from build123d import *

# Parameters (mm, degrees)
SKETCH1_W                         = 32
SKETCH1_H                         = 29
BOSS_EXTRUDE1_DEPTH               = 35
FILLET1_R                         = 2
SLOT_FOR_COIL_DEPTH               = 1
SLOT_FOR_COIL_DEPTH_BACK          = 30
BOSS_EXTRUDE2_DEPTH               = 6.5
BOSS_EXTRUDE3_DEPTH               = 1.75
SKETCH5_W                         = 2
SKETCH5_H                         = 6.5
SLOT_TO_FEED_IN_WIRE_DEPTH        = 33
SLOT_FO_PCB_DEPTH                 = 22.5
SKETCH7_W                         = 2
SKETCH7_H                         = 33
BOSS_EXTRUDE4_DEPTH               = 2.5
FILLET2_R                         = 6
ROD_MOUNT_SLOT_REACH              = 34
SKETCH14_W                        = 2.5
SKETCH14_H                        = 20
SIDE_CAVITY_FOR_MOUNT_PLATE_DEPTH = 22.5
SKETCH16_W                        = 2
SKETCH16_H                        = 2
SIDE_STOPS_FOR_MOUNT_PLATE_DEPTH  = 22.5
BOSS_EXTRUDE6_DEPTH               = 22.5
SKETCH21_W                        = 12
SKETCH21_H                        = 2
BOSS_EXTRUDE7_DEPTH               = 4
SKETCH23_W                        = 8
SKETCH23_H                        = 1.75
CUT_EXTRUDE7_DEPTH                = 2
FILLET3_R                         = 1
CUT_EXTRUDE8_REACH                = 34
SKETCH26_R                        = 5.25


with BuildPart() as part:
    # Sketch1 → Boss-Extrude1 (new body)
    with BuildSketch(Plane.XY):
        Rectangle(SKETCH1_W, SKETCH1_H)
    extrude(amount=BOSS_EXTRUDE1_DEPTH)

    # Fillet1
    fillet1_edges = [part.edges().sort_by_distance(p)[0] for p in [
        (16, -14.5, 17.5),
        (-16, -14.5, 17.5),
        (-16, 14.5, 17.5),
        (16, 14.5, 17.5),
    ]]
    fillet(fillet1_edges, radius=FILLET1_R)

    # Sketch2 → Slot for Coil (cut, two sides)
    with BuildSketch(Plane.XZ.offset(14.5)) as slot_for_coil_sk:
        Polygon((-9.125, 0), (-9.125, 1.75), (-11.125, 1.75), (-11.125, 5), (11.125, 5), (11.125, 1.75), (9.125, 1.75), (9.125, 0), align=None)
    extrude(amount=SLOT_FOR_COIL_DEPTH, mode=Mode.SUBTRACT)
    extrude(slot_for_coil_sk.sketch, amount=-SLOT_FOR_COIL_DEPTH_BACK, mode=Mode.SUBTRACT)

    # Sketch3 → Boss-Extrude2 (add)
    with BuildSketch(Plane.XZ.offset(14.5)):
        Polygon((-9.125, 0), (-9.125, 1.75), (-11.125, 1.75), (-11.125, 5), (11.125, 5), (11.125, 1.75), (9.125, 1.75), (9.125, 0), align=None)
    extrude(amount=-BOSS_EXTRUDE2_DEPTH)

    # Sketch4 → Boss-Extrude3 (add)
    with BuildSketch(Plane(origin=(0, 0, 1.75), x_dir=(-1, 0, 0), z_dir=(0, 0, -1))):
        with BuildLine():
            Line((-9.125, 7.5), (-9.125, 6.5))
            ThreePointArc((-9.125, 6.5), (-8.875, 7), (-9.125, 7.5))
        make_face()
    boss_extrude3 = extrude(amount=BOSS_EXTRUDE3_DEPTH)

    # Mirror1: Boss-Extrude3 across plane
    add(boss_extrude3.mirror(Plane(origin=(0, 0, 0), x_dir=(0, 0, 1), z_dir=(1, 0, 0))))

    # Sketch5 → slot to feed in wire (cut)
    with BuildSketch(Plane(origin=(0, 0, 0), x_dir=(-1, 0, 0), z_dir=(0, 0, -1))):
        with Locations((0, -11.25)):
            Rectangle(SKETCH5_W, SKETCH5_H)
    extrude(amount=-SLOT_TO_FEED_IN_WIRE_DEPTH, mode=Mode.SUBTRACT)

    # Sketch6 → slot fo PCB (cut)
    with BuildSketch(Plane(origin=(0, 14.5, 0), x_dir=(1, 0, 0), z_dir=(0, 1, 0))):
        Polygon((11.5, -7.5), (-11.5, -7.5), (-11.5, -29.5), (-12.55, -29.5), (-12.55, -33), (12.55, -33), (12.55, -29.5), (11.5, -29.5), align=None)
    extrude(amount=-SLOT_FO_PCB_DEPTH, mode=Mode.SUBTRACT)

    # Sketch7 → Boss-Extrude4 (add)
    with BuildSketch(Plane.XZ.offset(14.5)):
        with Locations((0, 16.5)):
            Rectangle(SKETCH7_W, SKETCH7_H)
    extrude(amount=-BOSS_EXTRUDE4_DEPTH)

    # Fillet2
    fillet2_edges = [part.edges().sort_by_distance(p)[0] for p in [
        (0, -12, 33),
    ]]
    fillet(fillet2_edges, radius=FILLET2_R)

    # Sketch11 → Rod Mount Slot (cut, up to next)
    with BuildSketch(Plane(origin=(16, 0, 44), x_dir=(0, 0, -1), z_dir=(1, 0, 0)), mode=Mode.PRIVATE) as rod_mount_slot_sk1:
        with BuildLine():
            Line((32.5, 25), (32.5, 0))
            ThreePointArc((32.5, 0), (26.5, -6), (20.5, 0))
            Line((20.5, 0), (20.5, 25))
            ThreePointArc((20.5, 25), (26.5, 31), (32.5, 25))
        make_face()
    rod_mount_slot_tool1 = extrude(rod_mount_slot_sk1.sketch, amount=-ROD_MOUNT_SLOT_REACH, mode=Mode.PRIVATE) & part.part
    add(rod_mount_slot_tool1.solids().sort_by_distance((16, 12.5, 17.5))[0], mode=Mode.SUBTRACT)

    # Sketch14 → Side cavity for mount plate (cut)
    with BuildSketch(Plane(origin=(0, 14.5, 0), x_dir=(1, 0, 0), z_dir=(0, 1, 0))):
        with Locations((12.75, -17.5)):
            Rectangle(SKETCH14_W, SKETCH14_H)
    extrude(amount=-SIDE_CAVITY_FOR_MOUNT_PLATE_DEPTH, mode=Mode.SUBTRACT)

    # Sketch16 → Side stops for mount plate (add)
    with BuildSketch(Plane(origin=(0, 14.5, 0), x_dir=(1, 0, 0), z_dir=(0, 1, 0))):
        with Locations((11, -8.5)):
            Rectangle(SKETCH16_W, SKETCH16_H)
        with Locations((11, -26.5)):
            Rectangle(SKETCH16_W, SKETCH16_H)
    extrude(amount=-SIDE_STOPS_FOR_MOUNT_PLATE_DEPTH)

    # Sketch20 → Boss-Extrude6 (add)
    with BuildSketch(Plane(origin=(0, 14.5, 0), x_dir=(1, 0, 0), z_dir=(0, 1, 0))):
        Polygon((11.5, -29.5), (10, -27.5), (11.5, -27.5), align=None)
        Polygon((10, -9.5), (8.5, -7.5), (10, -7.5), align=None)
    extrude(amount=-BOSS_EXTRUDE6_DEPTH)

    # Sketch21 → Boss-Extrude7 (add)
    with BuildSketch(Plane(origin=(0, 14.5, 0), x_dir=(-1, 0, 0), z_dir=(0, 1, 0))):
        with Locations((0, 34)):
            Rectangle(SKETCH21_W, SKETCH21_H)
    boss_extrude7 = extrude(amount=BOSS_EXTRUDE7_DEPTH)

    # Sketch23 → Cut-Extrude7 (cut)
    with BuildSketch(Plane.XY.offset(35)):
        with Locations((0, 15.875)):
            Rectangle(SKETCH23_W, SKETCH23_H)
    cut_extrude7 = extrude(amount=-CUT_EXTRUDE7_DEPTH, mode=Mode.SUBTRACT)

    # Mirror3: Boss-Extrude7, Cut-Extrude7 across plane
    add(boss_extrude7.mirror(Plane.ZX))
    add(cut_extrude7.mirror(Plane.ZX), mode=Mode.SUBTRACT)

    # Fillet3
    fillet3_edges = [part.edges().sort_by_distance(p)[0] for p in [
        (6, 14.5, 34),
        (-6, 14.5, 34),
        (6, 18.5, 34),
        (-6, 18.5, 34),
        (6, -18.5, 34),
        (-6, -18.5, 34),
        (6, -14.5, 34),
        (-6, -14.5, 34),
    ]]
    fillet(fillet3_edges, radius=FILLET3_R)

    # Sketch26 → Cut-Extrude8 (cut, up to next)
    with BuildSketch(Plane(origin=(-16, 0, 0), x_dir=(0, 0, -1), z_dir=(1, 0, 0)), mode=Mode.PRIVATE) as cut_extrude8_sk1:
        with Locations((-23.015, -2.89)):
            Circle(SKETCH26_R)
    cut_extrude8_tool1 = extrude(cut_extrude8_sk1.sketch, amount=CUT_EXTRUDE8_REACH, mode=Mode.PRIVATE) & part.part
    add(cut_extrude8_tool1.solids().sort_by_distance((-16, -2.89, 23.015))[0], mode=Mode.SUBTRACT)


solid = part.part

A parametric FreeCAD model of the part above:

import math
import FreeCAD as App
import Part
import Sketcher

V = App.Vector


def edges_at(feature, points):
    """Names of the edges that pass closest to the given points."""
    edges = feature.Shape.Edges
    near = lambda p: min(range(len(edges)), key=lambda i: edges[i].distToShape(Part.Vertex(*p))[0])
    return sorted({f"Edge{near(p) + 1}" for p in points})

doc = App.newDocument("Part")
body = doc.addObject("PartDesign::Body", "Body")

# Sketch on XY plane
sketch1 = body.newObject("Sketcher::SketchObject", "Sketch")
sketch1.AttachmentSupport = (doc.getObject("XY_Plane"), [""])
sketch1.MapMode = "FlatFace"
sketch1.addGeometry([
    Part.LineSegment(V(-16, 14, 0), V(-16, -14, 0)),
    Part.LineSegment(V(-16, -14, 0), V(16, -14, 0)),
    Part.LineSegment(V(16, -14, 0), V(16, 14, 0)),
    Part.LineSegment(V(16, 14, 0), V(-16, 14, 0)),
], False)
sketch1.addConstraint([
    Sketcher.Constraint("Coincident", 0, 2, 1, 1),
    Sketcher.Constraint("Coincident", 1, 2, 2, 1),
    Sketcher.Constraint("Coincident", 2, 2, 3, 1),
    Sketcher.Constraint("Coincident", 3, 2, 0, 1),
    Sketcher.Constraint("Vertical", 0),
    Sketcher.Constraint("Horizontal", 1),
    Sketcher.Constraint("Vertical", 2),
    Sketcher.Constraint("Horizontal", 3),
    Sketcher.Constraint("Symmetric", 0, 2, 2, 2, -1, 1),
    Sketcher.Constraint("DistanceX", 1, 1, 1, 2, 32.0),
    Sketcher.Constraint("DistanceY", 0, 2, 0, 1, 29.0),
])
pad1 = body.newObject("PartDesign::Pad", "Pad")
pad1.Profile = sketch1
pad1.Length = 35
doc.recompute()

fillet = body.newObject("PartDesign::Fillet", "Fillet")
fillet.Base = (pad1, edges_at(pad1, [
    (16, -14.5, 17.5),
    (-16, -14.5, 17.5),
    (-16, 14.5, 17.5),
    (16, 14.5, 17.5),
]))
fillet.Radius = 2

# Sketch on XZ plane
sketch2 = body.newObject("Sketcher::SketchObject", "Sketch001")
sketch2.AttachmentSupport = (doc.getObject("XZ_Plane"), [""])
sketch2.MapMode = "FlatFace"
sketch2.AttachmentOffset = App.Placement(V(0, 0, 14.5), App.Rotation())
sketch2.addGeometry([
    Part.LineSegment(V(-9.1, 1.8, 0), V(-9.1, 0, 0)),  # 0
    Part.LineSegment(V(-9.1, 0, 0), V(9.1, 0, 0)),  # 1
    Part.LineSegment(V(9.1, 0, 0), V(9.1, 1.8, 0)),  # 2
    Part.LineSegment(V(9.1, 1.8, 0), V(11.1, 1.8, 0)),  # 3
    Part.LineSegment(V(11.1, 1.8, 0), V(11.1, 5, 0)),  # 4
    Part.LineSegment(V(11.1, 5, 0), V(-11.1, 5, 0)),  # 5
    Part.LineSegment(V(-11.1, 5, 0), V(-11.1, 1.8, 0)),  # 6
    Part.LineSegment(V(-11.1, 1.8, 0), V(-9.1, 1.8, 0)),  # 7
], False)
sketch2.addConstraint([
    Sketcher.Constraint("Coincident", 0, 2, 1, 1),
    Sketcher.Constraint("Coincident", 1, 2, 2, 1),
    Sketcher.Constraint("Coincident", 2, 2, 3, 1),
    Sketcher.Constraint("Coincident", 3, 2, 4, 1),
    Sketcher.Constraint("Coincident", 4, 2, 5, 1),
    Sketcher.Constraint("Coincident", 5, 2, 6, 1),
    Sketcher.Constraint("Coincident", 6, 2, 7, 1),
    Sketcher.Constraint("Coincident", 7, 2, 0, 1),
    Sketcher.Constraint("Vertical", 0),
    Sketcher.Constraint("Horizontal", 1),
    Sketcher.Constraint("Vertical", 2),
    Sketcher.Constraint("Horizontal", 3),
    Sketcher.Constraint("Vertical", 4),
    Sketcher.Constraint("Horizontal", 5),
    Sketcher.Constraint("Vertical", 6),
    Sketcher.Constraint("Horizontal", 7),
    Sketcher.Constraint("Symmetric", 0, 2, 1, 2, -1, 1),
    Sketcher.Constraint("Symmetric", 3, 2, 6, 2, -2),
    Sketcher.Constraint("DistanceX", 3, 1, 3, 2, 2.0),
    Sketcher.Constraint("DistanceY", -1, 1, 4, 2, 5.0),
    Sketcher.Constraint("DistanceX", 1, 1, 1, 2, 18.25),
    Sketcher.Constraint("DistanceY", 0, 2, 0, 1, 1.75),
])
pocket1 = body.newObject("PartDesign::Pocket", "Pocket")
pocket1.Profile = sketch2
pocket1.Type = "ThroughAll"
pocket1.Midplane = True

# Sketch on XZ plane
sketch3 = body.newObject("Sketcher::SketchObject", "Sketch002")
sketch3.AttachmentSupport = (doc.getObject("XZ_Plane"), [""])
sketch3.MapMode = "FlatFace"
sketch3.AttachmentOffset = App.Placement(V(0, 0, 14.5), App.Rotation())
sketch3.addGeometry([
    Part.LineSegment(V(-9.1, 1.8, 0), V(-9.1, 0, 0)),  # 0
    Part.LineSegment(V(-9.1, 0, 0), V(9.1, 0, 0)),  # 1
    Part.LineSegment(V(9.1, 0, 0), V(9.1, 1.8, 0)),  # 2
    Part.LineSegment(V(9.1, 1.8, 0), V(11.1, 1.8, 0)),  # 3
    Part.LineSegment(V(11.1, 1.8, 0), V(11.1, 5, 0)),  # 4
    Part.LineSegment(V(11.1, 5, 0), V(-11.1, 5, 0)),  # 5
    Part.LineSegment(V(-11.1, 5, 0), V(-11.1, 1.8, 0)),  # 6
    Part.LineSegment(V(-11.1, 1.8, 0), V(-9.1, 1.8, 0)),  # 7
], False)
sketch3.addConstraint([
    Sketcher.Constraint("Coincident", 0, 2, 1, 1),
    Sketcher.Constraint("Coincident", 1, 2, 2, 1),
    Sketcher.Constraint("Coincident", 2, 2, 3, 1),
    Sketcher.Constraint("Coincident", 3, 2, 4, 1),
    Sketcher.Constraint("Coincident", 4, 2, 5, 1),
    Sketcher.Constraint("Coincident", 5, 2, 6, 1),
    Sketcher.Constraint("Coincident", 6, 2, 7, 1),
    Sketcher.Constraint("Coincident", 7, 2, 0, 1),
    Sketcher.Constraint("Vertical", 0),
    Sketcher.Constraint("Horizontal", 1),
    Sketcher.Constraint("Vertical", 2),
    Sketcher.Constraint("Horizontal", 3),
    Sketcher.Constraint("Vertical", 4),
    Sketcher.Constraint("Horizontal", 5),
    Sketcher.Constraint("Vertical", 6),
    Sketcher.Constraint("Horizontal", 7),
    Sketcher.Constraint("Symmetric", 0, 2, 1, 2, -1, 1),
    Sketcher.Constraint("Symmetric", 3, 2, 6, 2, -2),
    Sketcher.Constraint("DistanceX", 3, 1, 3, 2, 2.0),
    Sketcher.Constraint("DistanceY", -1, 1, 4, 2, 5.0),
    Sketcher.Constraint("DistanceX", 1, 1, 1, 2, 18.25),
    Sketcher.Constraint("DistanceY", 0, 2, 0, 1, 1.75),
])
pad2 = body.newObject("PartDesign::Pad", "Pad001")
pad2.Profile = sketch3
pad2.Length = 6.5
pad2.Reversed = True

# Sketch on XY plane
sketch4 = body.newObject("Sketcher::SketchObject", "Sketch003")
sketch4.AttachmentSupport = (doc.getObject("XY_Plane"), [""])
sketch4.MapMode = "FlatFace"
sketch4.AttachmentOffset = App.Placement(V(0, 0, 1.75), App.Rotation())
sketch4.addGeometry([
    Part.LineSegment(V(9.1, 7.5, 0), V(9.1, 6.5, 0)),
    Part.ArcOfCircle(Part.Circle(V(9.5, 7, 0), V(0, 0, 1), 0.6), math.radians(127), math.radians(233)),
], False)
sketch4.addConstraint([
    Sketcher.Constraint("Coincident", 0, 1, 1, 1),
    Sketcher.Constraint("Coincident", 1, 2, 0, 2),
    Sketcher.Constraint("Vertical", 0),
    Sketcher.Constraint("DistanceY", 0, 2, 0, 1, 1.0),
    Sketcher.Constraint("DistanceY", -1, 1, 1, 3, 7.0),
    Sketcher.Constraint("Radius", 1, 0.625),
    Sketcher.Constraint("DistanceX", -1, 1, 1, 3, 9.5),
])
pad3 = body.newObject("PartDesign::Pad", "Pad002")
pad3.Profile = sketch4
pad3.Length = 1.75
pad3.Reversed = True
doc.recompute()

mirrored = body.newObject("PartDesign::Mirrored", "Mirrored")
mirrored.Originals = [pad3]
mirrored.MirrorPlane = (doc.getObject("YZ_Plane"), [""])
body.Tip = mirrored

# Sketch on XY plane
sketch5 = body.newObject("Sketcher::SketchObject", "Sketch004")
sketch5.AttachmentSupport = (doc.getObject("XY_Plane"), [""])
sketch5.MapMode = "FlatFace"
sketch5.addGeometry([
    Part.LineSegment(V(1, -8, 0), V(1, -14.5, 0)),
    Part.LineSegment(V(1, -14.5, 0), V(-1, -14.5, 0)),
    Part.LineSegment(V(-1, -14.5, 0), V(-1, -8, 0)),
    Part.LineSegment(V(-1, -8, 0), V(1, -8, 0)),
], False)
sketch5.addConstraint([
    Sketcher.Constraint("Coincident", 0, 2, 1, 1),
    Sketcher.Constraint("Coincident", 1, 2, 2, 1),
    Sketcher.Constraint("Coincident", 2, 2, 3, 1),
    Sketcher.Constraint("Coincident", 3, 2, 0, 1),
    Sketcher.Constraint("Vertical", 0),
    Sketcher.Constraint("Horizontal", 1),
    Sketcher.Constraint("Vertical", 2),
    Sketcher.Constraint("Horizontal", 3),
    Sketcher.Constraint("DistanceX", 1, 2, 1, 1, 2.0),
    Sketcher.Constraint("DistanceY", 0, 2, 0, 1, 6.5),
    Sketcher.Constraint("DistanceX", -1, 1, 0, 2, 1.0),
    Sketcher.Constraint("DistanceY", 2, 2, -1, 1, 8.0),
])
pocket2 = body.newObject("PartDesign::Pocket", "Pocket001")
pocket2.Profile = sketch5
pocket2.Length = 33
pocket2.Reversed = True

# Sketch on XZ plane
sketch6 = body.newObject("Sketcher::SketchObject", "Sketch005")
sketch6.AttachmentSupport = (doc.getObject("XZ_Plane"), [""])
sketch6.MapMode = "FlatFace"
sketch6.AttachmentOffset = App.Placement(V(0, 0, -14.5), App.Rotation())
sketch6.addGeometry([
    Part.LineSegment(V(11.5, 7.5, 0), V(-11.5, 7.5, 0)),  # 0
    Part.LineSegment(V(-11.5, 7.5, 0), V(-11.5, 29.5, 0)),  # 1
    Part.LineSegment(V(-11.5, 29.5, 0), V(-12.6, 29.5, 0)),  # 2
    Part.LineSegment(V(-12.6, 29.5, 0), V(-12.6, 33, 0)),  # 3
    Part.LineSegment(V(-12.6, 33, 0), V(12.6, 33, 0)),  # 4
    Part.LineSegment(V(12.6, 33, 0), V(12.6, 29.5, 0)),  # 5
    Part.LineSegment(V(12.6, 29.5, 0), V(11.5, 29.5, 0)),  # 6
    Part.LineSegment(V(11.5, 29.5, 0), V(11.5, 7.5, 0)),  # 7
], False)
sketch6.addConstraint([
    Sketcher.Constraint("Coincident", 0, 2, 1, 1),
    Sketcher.Constraint("Coincident", 1, 2, 2, 1),
    Sketcher.Constraint("Coincident", 2, 2, 3, 1),
    Sketcher.Constraint("Coincident", 3, 2, 4, 1),
    Sketcher.Constraint("Coincident", 4, 2, 5, 1),
    Sketcher.Constraint("Coincident", 5, 2, 6, 1),
    Sketcher.Constraint("Coincident", 6, 2, 7, 1),
    Sketcher.Constraint("Coincident", 7, 2, 0, 1),
    Sketcher.Constraint("Horizontal", 0),
    Sketcher.Constraint("Vertical", 1),
    Sketcher.Constraint("Horizontal", 2),
    Sketcher.Constraint("Vertical", 3),
    Sketcher.Constraint("Horizontal", 4),
    Sketcher.Constraint("Vertical", 5),
    Sketcher.Constraint("Horizontal", 6),
    Sketcher.Constraint("Vertical", 7),
    Sketcher.Constraint("Symmetric", 2, 2, 5, 2, -2),
    Sketcher.Constraint("Equal", 2, 6),
    Sketcher.Constraint("DistanceX", 0, 2, 0, 1, 23.0),
    Sketcher.Constraint("DistanceY", 1, 1, 1, 2, 22.0),
    Sketcher.Constraint("DistanceX", 4, 1, 4, 2, 25.1),
    Sketcher.Constraint("DistanceY", 3, 1, 3, 2, 3.5),
    Sketcher.Constraint("DistanceY", -1, 1, 3, 2, 33.0),
])
pocket3 = body.newObject("PartDesign::Pocket", "Pocket002")
pocket3.Profile = sketch6
pocket3.Length = 22.5
pocket3.Reversed = True

# Sketch on XZ plane
sketch7 = body.newObject("Sketcher::SketchObject", "Sketch006")
sketch7.AttachmentSupport = (doc.getObject("XZ_Plane"), [""])
sketch7.MapMode = "FlatFace"
sketch7.AttachmentOffset = App.Placement(V(0, 0, 14.5), App.Rotation())
sketch7.addGeometry([
    Part.LineSegment(V(-1, 33, 0), V(-1, 0, 0)),
    Part.LineSegment(V(-1, 0, 0), V(1, 0, 0)),
    Part.LineSegment(V(1, 0, 0), V(1, 33, 0)),
    Part.LineSegment(V(1, 33, 0), V(-1, 33, 0)),
], False)
sketch7.addConstraint([
    Sketcher.Constraint("Coincident", 0, 2, 1, 1),
    Sketcher.Constraint("Coincident", 1, 2, 2, 1),
    Sketcher.Constraint("Coincident", 2, 2, 3, 1),
    Sketcher.Constraint("Coincident", 3, 2, 0, 1),
    Sketcher.Constraint("Vertical", 0),
    Sketcher.Constraint("Horizontal", 1),
    Sketcher.Constraint("Vertical", 2),
    Sketcher.Constraint("Horizontal", 3),
    Sketcher.Constraint("Symmetric", 0, 2, 1, 2, -1, 1),
    Sketcher.Constraint("DistanceX", 1, 1, 1, 2, 2.0),
    Sketcher.Constraint("DistanceY", 0, 2, 0, 1, 33.0),
])
pad4 = body.newObject("PartDesign::Pad", "Pad003")
pad4.Profile = sketch7
pad4.Length = 2.5
pad4.Reversed = True
doc.recompute()

fillet2 = body.newObject("PartDesign::Fillet", "Fillet001")
fillet2.Base = (pad4, edges_at(pad4, [(0, -12, 33)]))
fillet2.Radius = 6

# Sketch on YZ plane
sketch8 = body.newObject("Sketcher::SketchObject", "Sketch007")
sketch8.AttachmentSupport = (doc.getObject("YZ_Plane"), [""])
sketch8.MapMode = "FlatFace"
sketch8.AttachmentOffset = App.Placement(V(0, 0, 16), App.Rotation())
sketch8.addGeometry([
    Part.LineSegment(V(0, 12, 0), V(25, 12, 0)),
    Part.ArcOfCircle(Part.Circle(V(25, 18, 0), V(0, 0, 1), 6), math.radians(-90), math.radians(90)),
    Part.LineSegment(V(25, 24, 0), V(0, 24, 0)),
    Part.ArcOfCircle(Part.Circle(V(0, 18, 0), V(0, 0, 1), 6), math.radians(90), math.radians(270)),
], False)
sketch8.addConstraint([
    Sketcher.Constraint("Tangent", 0, 2, 1, 1),
    Sketcher.Constraint("Tangent", 1, 2, 2, 1),
    Sketcher.Constraint("Tangent", 2, 2, 3, 1),
    Sketcher.Constraint("Tangent", 3, 2, 0, 1),
    Sketcher.Constraint("Horizontal", 0),
    Sketcher.Constraint("Horizontal", 2),
    Sketcher.Constraint("PointOnObject", 3, 3, -2),
    Sketcher.Constraint("Radius", 1, 6.0),
    Sketcher.Constraint("DistanceX", 0, 1, 0, 2, 25.0),
    Sketcher.Constraint("DistanceY", -1, 1, 1, 3, 17.5),
])
pocket4 = body.newObject("PartDesign::Pocket", "Pocket003")
pocket4.Profile = sketch8
pocket4.Type = "UpToFirst"

# Sketch on XZ plane
sketch9 = body.newObject("Sketcher::SketchObject", "Sketch008")
sketch9.AttachmentSupport = (doc.getObject("XZ_Plane"), [""])
sketch9.MapMode = "FlatFace"
sketch9.AttachmentOffset = App.Placement(V(0, 0, -14.5), App.Rotation())
sketch9.addGeometry([
    Part.LineSegment(V(11.5, 7.5, 0), V(11.5, 27.5, 0)),
    Part.LineSegment(V(11.5, 27.5, 0), V(14, 27.5, 0)),
    Part.LineSegment(V(14, 27.5, 0), V(14, 7.5, 0)),
    Part.LineSegment(V(14, 7.5, 0), V(11.5, 7.5, 0)),
], False)
sketch9.addConstraint([
    Sketcher.Constraint("Coincident", 0, 2, 1, 1),
    Sketcher.Constraint("Coincident", 1, 2, 2, 1),
    Sketcher.Constraint("Coincident", 2, 2, 3, 1),
    Sketcher.Constraint("Coincident", 3, 2, 0, 1),
    Sketcher.Constraint("Vertical", 0),
    Sketcher.Constraint("Horizontal", 1),
    Sketcher.Constraint("Vertical", 2),
    Sketcher.Constraint("Horizontal", 3),
    Sketcher.Constraint("DistanceY", 0, 1, 0, 2, 20.0),
    Sketcher.Constraint("DistanceX", 1, 1, 1, 2, 2.5),
    Sketcher.Constraint("DistanceX", -1, 1, 1, 2, 14.0),
    Sketcher.Constraint("DistanceY", -1, 1, 0, 2, 27.5),
])
pocket5 = body.newObject("PartDesign::Pocket", "Pocket004")
pocket5.Profile = sketch9
pocket5.Length = 22.5
pocket5.Reversed = True

# Sketch on XZ plane
sketch10 = body.newObject("Sketcher::SketchObject", "Sketch009")
sketch10.AttachmentSupport = (doc.getObject("XZ_Plane"), [""])
sketch10.MapMode = "FlatFace"
sketch10.AttachmentOffset = App.Placement(V(0, 0, -14.5), App.Rotation())
sketch10.addGeometry([
    Part.LineSegment(V(10, 7.5, 0), V(10, 9.5, 0)),  # 0
    Part.LineSegment(V(10, 9.5, 0), V(12, 9.5, 0)),  # 1
    Part.LineSegment(V(12, 9.5, 0), V(12, 7.5, 0)),  # 2
    Part.LineSegment(V(12, 7.5, 0), V(10, 7.5, 0)),  # 3
    Part.LineSegment(V(10, 25.5, 0), V(10, 27.5, 0)),  # 4
    Part.LineSegment(V(10, 27.5, 0), V(12, 27.5, 0)),  # 5
    Part.LineSegment(V(12, 27.5, 0), V(12, 25.5, 0)),  # 6
    Part.LineSegment(V(12, 25.5, 0), V(10, 25.5, 0)),  # 7
], False)
sketch10.addConstraint([
    Sketcher.Constraint("Coincident", 0, 2, 1, 1),
    Sketcher.Constraint("Coincident", 1, 2, 2, 1),
    Sketcher.Constraint("Coincident", 2, 2, 3, 1),
    Sketcher.Constraint("Coincident", 3, 2, 0, 1),
    Sketcher.Constraint("Coincident", 4, 2, 5, 1),
    Sketcher.Constraint("Coincident", 5, 2, 6, 1),
    Sketcher.Constraint("Coincident", 6, 2, 7, 1),
    Sketcher.Constraint("Coincident", 7, 2, 4, 1),
    Sketcher.Constraint("Vertical", 0),
    Sketcher.Constraint("Horizontal", 1),
    Sketcher.Constraint("Vertical", 2),
    Sketcher.Constraint("Horizontal", 3),
    Sketcher.Constraint("Vertical", 4),
    Sketcher.Constraint("Horizontal", 5),
    Sketcher.Constraint("Vertical", 6),
    Sketcher.Constraint("Horizontal", 7),
    Sketcher.Constraint("Vertical", 3, 2, 4, 2),
    Sketcher.Constraint("Vertical", 2, 2, 5, 2),
    Sketcher.Constraint("Equal", 7, 0),
    Sketcher.Constraint("Equal", 2, 4),
    Sketcher.Constraint("DistanceX", 1, 1, 1, 2, 2.0),
    Sketcher.Constraint("DistanceX", -1, 1, 0, 2, 10.0),
    Sketcher.Constraint("DistanceY", 0, 2, 4, 2, 18.0),
    Sketcher.Constraint("DistanceY", -1, 1, 0, 2, 9.5),
])
pad5 = body.newObject("PartDesign::Pad", "Pad004")
pad5.Profile = sketch10
pad5.Length = 22.5

# Sketch on XZ plane
sketch11 = body.newObject("Sketcher::SketchObject", "Sketch010")
sketch11.AttachmentSupport = (doc.getObject("XZ_Plane"), [""])
sketch11.MapMode = "FlatFace"
sketch11.AttachmentOffset = App.Placement(V(0, 0, -14.5), App.Rotation())
sketch11.addGeometry([
    Part.LineSegment(V(10, 27.5, 0), V(11.5, 29.5, 0)),  # 0
    Part.LineSegment(V(11.5, 29.5, 0), V(11.5, 27.5, 0)),  # 1
    Part.LineSegment(V(11.5, 27.5, 0), V(10, 27.5, 0)),  # 2
    Part.LineSegment(V(8.5, 7.5, 0), V(10, 9.5, 0)),  # 3
    Part.LineSegment(V(10, 9.5, 0), V(10, 7.5, 0)),  # 4
    Part.LineSegment(V(10, 7.5, 0), V(8.5, 7.5, 0)),  # 5
], False)
sketch11.addConstraint([
    Sketcher.Constraint("Coincident", 0, 2, 1, 1),
    Sketcher.Constraint("Coincident", 1, 2, 2, 1),
    Sketcher.Constraint("Coincident", 2, 2, 0, 1),
    Sketcher.Constraint("Coincident", 3, 2, 4, 1),
    Sketcher.Constraint("Coincident", 4, 2, 5, 1),
    Sketcher.Constraint("Coincident", 5, 2, 3, 1),
    Sketcher.Constraint("Vertical", 1),
    Sketcher.Constraint("Horizontal", 2),
    Sketcher.Constraint("Vertical", 4),
    Sketcher.Constraint("Horizontal", 5),
    Sketcher.Constraint("Parallel", 0, 3),
    Sketcher.Constraint("Vertical", 2, 2, 3, 2),
    Sketcher.Constraint("Equal", 2, 5),
    Sketcher.Constraint("DistanceY", 1, 2, 1, 1, 2.0),
    Sketcher.Constraint("DistanceX", 2, 2, 2, 1, 1.5),
    Sketcher.Constraint("DistanceX", -1, 1, 2, 2, 10.0),
    Sketcher.Constraint("DistanceY", 3, 2, 2, 2, 18.0),
    Sketcher.Constraint("DistanceY", -1, 1, 0, 2, 29.5),
])
pad6 = body.newObject("PartDesign::Pad", "Pad005")
pad6.Profile = sketch11
pad6.Length = 22.5

# Sketch on XZ plane
sketch12 = body.newObject("Sketcher::SketchObject", "Sketch011")
sketch12.AttachmentSupport = (doc.getObject("XZ_Plane"), [""])
sketch12.MapMode = "FlatFace"
sketch12.AttachmentOffset = App.Placement(V(0, 0, -14.5), App.Rotation())
sketch12.addGeometry([
    Part.LineSegment(V(6, 35, 0), V(6, 33, 0)),
    Part.LineSegment(V(6, 33, 0), V(-6, 33, 0)),
    Part.LineSegment(V(-6, 33, 0), V(-6, 35, 0)),
    Part.LineSegment(V(-6, 35, 0), V(6, 35, 0)),
], False)
sketch12.addConstraint([
    Sketcher.Constraint("Coincident", 0, 2, 1, 1),
    Sketcher.Constraint("Coincident", 1, 2, 2, 1),
    Sketcher.Constraint("Coincident", 2, 2, 3, 1),
    Sketcher.Constraint("Coincident", 3, 2, 0, 1),
    Sketcher.Constraint("Vertical", 0),
    Sketcher.Constraint("Horizontal", 1),
    Sketcher.Constraint("Vertical", 2),
    Sketcher.Constraint("Horizontal", 3),
    Sketcher.Constraint("DistanceX", 1, 2, 1, 1, 12.0),
    Sketcher.Constraint("DistanceY", 0, 2, 0, 1, 2.0),
    Sketcher.Constraint("DistanceX", -1, 1, 0, 2, 6.0),
    Sketcher.Constraint("DistanceY", -1, 1, 0, 2, 33.0),
])
pad7 = body.newObject("PartDesign::Pad", "Pad006")
pad7.Profile = sketch12
pad7.Length = 4
pad7.Reversed = True

# Sketch on XY plane
sketch13 = body.newObject("Sketcher::SketchObject", "Sketch012")
sketch13.AttachmentSupport = (doc.getObject("XY_Plane"), [""])
sketch13.MapMode = "FlatFace"
sketch13.AttachmentOffset = App.Placement(V(0, 0, 35), App.Rotation())
sketch13.addGeometry([
    Part.LineSegment(V(-4, 16.8, 0), V(-4, 15, 0)),
    Part.LineSegment(V(-4, 15, 0), V(4, 15, 0)),
    Part.LineSegment(V(4, 15, 0), V(4, 16.8, 0)),
    Part.LineSegment(V(4, 16.8, 0), V(-4, 16.8, 0)),
], False)
sketch13.addConstraint([
    Sketcher.Constraint("Coincident", 0, 2, 1, 1),
    Sketcher.Constraint("Coincident", 1, 2, 2, 1),
    Sketcher.Constraint("Coincident", 2, 2, 3, 1),
    Sketcher.Constraint("Coincident", 3, 2, 0, 1),
    Sketcher.Constraint("Vertical", 0),
    Sketcher.Constraint("Horizontal", 1),
    Sketcher.Constraint("Vertical", 2),
    Sketcher.Constraint("Horizontal", 3),
    Sketcher.Constraint("DistanceX", 1, 1, 1, 2, 8.0),
    Sketcher.Constraint("DistanceX", 0, 2, -1, 1, 4.0),
    Sketcher.Constraint("DistanceY", -1, 1, 0, 2, 15.0),
    Sketcher.Constraint("DistanceY", 0, 2, 0, 1, 1.75),
])
pocket6 = body.newObject("PartDesign::Pocket", "Pocket005")
pocket6.Profile = sketch13
pocket6.Length = 2
doc.recompute()

mirrored2 = body.newObject("PartDesign::Mirrored", "Mirrored001")
mirrored2.Originals = [pad7, pocket6]
mirrored2.MirrorPlane = (doc.getObject("XZ_Plane"), [""])
body.Tip = mirrored2
doc.recompute()

fillet3 = body.newObject("PartDesign::Fillet", "Fillet002")
fillet3.Base = (mirrored2, edges_at(mirrored2, [
    (6, 14.5, 34),
    (-6, 14.5, 34),
    (6, 18.5, 34),
    (-6, 18.5, 34),
    (6, -18.5, 34),
    (-6, -18.5, 34),
    (6, -14.5, 34),
    (-6, -14.5, 34),
]))
fillet3.Radius = 1

# Sketch on YZ plane
sketch14 = body.newObject("Sketcher::SketchObject", "Sketch013")
sketch14.AttachmentSupport = (doc.getObject("YZ_Plane"), [""])
sketch14.MapMode = "FlatFace"
sketch14.AttachmentOffset = App.Placement(V(0, 0, -16), App.Rotation())
sketch14.addGeometry(Part.Circle(V(-3, 23, 0), V(0, 0, 1), 5), False)
sketch14.addConstraint([
    Sketcher.Constraint("Diameter", 0, 10.5),
    Sketcher.Constraint("DistanceX", 0, 3, -1, 1, 2.89),
    Sketcher.Constraint("DistanceY", -1, 1, 0, 3, 23.015),
])
pocket7 = body.newObject("PartDesign::Pocket", "Pocket006")
pocket7.Profile = sketch14
pocket7.Length = 15
pocket7.Reversed = True

doc.recompute()
